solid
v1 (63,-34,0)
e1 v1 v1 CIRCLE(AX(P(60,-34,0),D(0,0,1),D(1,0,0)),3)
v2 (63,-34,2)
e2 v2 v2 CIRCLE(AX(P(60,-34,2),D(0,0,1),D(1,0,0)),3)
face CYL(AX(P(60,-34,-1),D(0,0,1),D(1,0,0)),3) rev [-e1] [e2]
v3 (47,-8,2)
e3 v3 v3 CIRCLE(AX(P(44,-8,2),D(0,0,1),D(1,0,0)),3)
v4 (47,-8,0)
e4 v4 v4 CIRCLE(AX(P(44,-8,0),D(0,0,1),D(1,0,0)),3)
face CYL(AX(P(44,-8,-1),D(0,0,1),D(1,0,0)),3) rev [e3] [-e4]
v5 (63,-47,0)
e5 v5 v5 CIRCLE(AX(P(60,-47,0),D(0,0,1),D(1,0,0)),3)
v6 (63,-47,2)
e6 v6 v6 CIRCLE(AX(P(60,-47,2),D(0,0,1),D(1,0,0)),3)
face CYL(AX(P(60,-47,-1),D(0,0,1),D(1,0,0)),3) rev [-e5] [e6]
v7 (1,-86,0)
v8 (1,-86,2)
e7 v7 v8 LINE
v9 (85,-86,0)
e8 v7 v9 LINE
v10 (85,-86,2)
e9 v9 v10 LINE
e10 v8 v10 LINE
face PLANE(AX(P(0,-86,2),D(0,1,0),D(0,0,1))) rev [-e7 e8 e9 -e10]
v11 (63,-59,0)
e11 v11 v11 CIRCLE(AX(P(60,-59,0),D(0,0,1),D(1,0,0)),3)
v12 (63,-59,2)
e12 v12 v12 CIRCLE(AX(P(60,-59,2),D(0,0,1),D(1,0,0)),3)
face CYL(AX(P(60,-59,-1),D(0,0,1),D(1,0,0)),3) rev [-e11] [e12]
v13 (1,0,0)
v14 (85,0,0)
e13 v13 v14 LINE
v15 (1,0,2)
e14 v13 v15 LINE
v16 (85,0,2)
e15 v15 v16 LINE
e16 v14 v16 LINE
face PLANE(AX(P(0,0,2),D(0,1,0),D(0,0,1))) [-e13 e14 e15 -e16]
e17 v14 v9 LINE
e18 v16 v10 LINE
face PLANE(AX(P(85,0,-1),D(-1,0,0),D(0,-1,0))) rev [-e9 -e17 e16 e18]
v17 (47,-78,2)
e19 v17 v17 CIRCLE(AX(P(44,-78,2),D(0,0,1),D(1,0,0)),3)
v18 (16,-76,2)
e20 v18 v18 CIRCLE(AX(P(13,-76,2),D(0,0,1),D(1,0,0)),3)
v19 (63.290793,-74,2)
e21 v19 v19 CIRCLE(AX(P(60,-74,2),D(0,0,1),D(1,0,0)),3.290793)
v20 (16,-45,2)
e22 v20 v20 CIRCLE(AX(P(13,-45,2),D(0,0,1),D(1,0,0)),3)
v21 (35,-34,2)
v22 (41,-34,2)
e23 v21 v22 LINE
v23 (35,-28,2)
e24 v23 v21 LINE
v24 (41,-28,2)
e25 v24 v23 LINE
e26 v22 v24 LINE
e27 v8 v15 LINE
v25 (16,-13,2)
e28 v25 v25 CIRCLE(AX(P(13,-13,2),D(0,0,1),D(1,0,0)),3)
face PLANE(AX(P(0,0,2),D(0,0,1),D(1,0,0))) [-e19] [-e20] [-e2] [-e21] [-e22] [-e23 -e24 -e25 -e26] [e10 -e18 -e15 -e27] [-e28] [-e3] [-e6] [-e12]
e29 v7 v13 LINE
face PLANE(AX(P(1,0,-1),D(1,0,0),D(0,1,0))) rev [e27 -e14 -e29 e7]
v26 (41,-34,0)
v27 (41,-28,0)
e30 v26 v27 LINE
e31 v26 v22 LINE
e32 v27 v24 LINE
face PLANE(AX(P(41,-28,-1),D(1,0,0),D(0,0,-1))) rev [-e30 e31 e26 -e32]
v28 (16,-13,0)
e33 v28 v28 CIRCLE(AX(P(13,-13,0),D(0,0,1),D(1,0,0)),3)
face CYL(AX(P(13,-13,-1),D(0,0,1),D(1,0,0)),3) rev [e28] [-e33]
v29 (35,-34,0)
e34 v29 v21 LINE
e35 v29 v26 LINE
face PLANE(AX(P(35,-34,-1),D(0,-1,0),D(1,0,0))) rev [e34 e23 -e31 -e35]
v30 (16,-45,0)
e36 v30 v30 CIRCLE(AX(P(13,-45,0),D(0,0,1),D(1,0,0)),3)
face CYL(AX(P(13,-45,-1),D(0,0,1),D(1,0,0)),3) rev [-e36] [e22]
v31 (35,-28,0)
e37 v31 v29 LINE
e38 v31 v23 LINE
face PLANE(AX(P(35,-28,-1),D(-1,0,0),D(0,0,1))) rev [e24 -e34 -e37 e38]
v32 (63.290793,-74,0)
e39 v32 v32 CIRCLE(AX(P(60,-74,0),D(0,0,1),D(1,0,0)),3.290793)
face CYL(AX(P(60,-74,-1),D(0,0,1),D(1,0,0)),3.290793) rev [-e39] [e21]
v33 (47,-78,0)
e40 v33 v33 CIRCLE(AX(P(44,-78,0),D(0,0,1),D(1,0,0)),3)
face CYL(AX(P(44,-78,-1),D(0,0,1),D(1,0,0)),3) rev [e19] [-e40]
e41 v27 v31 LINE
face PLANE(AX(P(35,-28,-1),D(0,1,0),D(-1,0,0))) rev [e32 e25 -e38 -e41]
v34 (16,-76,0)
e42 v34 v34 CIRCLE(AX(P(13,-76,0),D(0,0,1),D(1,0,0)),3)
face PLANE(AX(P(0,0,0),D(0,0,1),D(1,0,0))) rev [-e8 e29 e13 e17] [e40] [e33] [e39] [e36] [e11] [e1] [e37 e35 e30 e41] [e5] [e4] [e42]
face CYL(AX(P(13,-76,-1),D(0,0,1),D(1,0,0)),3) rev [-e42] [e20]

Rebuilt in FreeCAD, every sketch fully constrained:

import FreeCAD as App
import Part
import Sketcher


def add_polygon(sketch, points):
    """Adds a closed chain of lines whose ends are joined by coincident constraints."""
    first, n = sketch.GeometryCount, len(points)
    for a, b in zip(points, points[1:] + points[:1]):
        sketch.addGeometry(Part.LineSegment(App.Vector(*a, 0), App.Vector(*b, 0)), False)
    for i in range(n):
        sketch.addConstraint(Sketcher.Constraint("Coincident", first + i, 2, first + (i + 1) % n, 1))

doc = App.newDocument("Part")
body = doc.addObject("PartDesign::Body", "Body")

sketch1 = body.newObject("Sketcher::SketchObject", "Sketch")
sketch1.AttachmentSupport = (doc.getObject("XY_Plane"), [""])
sketch1.MapMode = "FlatFace"
add_polygon(sketch1, [(0, 0), (0, -86), (86, -86), (86, 0)])
sketch1.addConstraint(Sketcher.Constraint("Vertical", 0))
sketch1.addConstraint(Sketcher.Constraint("Horizontal", 1))
sketch1.addConstraint(Sketcher.Constraint("Vertical", 2))
sketch1.addConstraint(Sketcher.Constraint("Horizontal", 3))
sketch1.addConstraint(Sketcher.Constraint("Coincident", 3, 2, -1, 1))
sketch1.addConstraint(Sketcher.Constraint("Equal", 3, 0))
sketch1.addConstraint(Sketcher.Constraint("DistanceX", 1, 1, 1, 2, 86.0))
pad1 = body.newObject("PartDesign::Pad", "Pad")
pad1.Profile = sketch1
pad1.Length = 2

sketch2 = body.newObject("Sketcher::SketchObject", "Sketch001")
sketch2.AttachmentSupport = (doc.getObject("XY_Plane"), [""])
sketch2.MapMode = "FlatFace"
sketch2.AttachmentOffset = App.Placement(App.Vector(0, 0, 2), App.Rotation())
sketch2.addGeometry(Part.Circle(App.Vector(13, -13, 0), App.Vector(0, 0, 1), 3), False)
sketch2.addConstraint(Sketcher.Constraint("Diameter", 0, 6.0))
sketch2.addConstraint(Sketcher.Constraint("DistanceX", -1, 1, 0, 3, 13.0))
sketch2.addConstraint(Sketcher.Constraint("DistanceY", 0, 3, -1, 1, 13.0))
pocket1 = body.newObject("PartDesign::Pocket", "Pocket")
pocket1.Profile = sketch2
pocket1.Length = 3

sketch3 = body.newObject("Sketcher::SketchObject", "Sketch002")
sketch3.AttachmentSupport = (doc.getObject("XY_Plane"), [""])
sketch3.MapMode = "FlatFace"
sketch3.AttachmentOffset = App.Placement(App.Vector(0, 0, 2), App.Rotation())
sketch3.addGeometry(Part.Circle(App.Vector(13, -45, 0), App.Vector(0, 0, 1), 3), False)
sketch3.addConstraint(Sketcher.Constraint("Diameter", 0, 6.0))
sketch3.addConstraint(Sketcher.Constraint("DistanceX", -1, 1, 0, 3, 13.0))
sketch3.addConstraint(Sketcher.Constraint("DistanceY", 0, 3, -1, 1, 45.0))
pocket2 = body.newObject("PartDesign::Pocket", "Pocket001")
pocket2.Profile = sketch3
pocket2.Length = 3

sketch4 = body.newObject("Sketcher::SketchObject", "Sketch003")
sketch4.AttachmentSupport = (doc.getObject("XY_Plane"), [""])
sketch4.MapMode = "FlatFace"
sketch4.AttachmentOffset = App.Placement(App.Vector(0, 0, 2), App.Rotation())
sketch4.addGeometry(Part.Circle(App.Vector(13, -76, 0), App.Vector(0, 0, 1), 3), False)
sketch4.addConstraint(Sketcher.Constraint("Diameter", 0, 6.0))
sketch4.addConstraint(Sketcher.Constraint("DistanceX", -1, 1, 0, 3, 13.0))
sketch4.addConstraint(Sketcher.Constraint("DistanceY", 0, 3, -1, 1, 76.0))
pocket3 = body.newObject("PartDesign::Pocket", "Pocket002")
pocket3.Profile = sketch4
pocket3.Length = 3

sketch5 = body.newObject("Sketcher::SketchObject", "Sketch004")
sketch5.AttachmentSupport = (doc.getObject("XY_Plane"), [""])
sketch5.MapMode = "FlatFace"
sketch5.AttachmentOffset = App.Placement(App.Vector(0, 0, 2), App.Rotation())
sketch5.addGeometry(Part.Circle(App.Vector(44, -8, 0), App.Vector(0, 0, 1), 3), False)
sketch5.addConstraint(Sketcher.Constraint("Diameter", 0, 6.0))
sketch5.addConstraint(Sketcher.Constraint("DistanceX", -1, 1, 0, 3, 44.0))
sketch5.addConstraint(Sketcher.Constraint("DistanceY", 0, 3, -1, 1, 8.0))
pocket4 = body.newObject("PartDesign::Pocket", "Pocket003")
pocket4.Profile = sketch5
pocket4.Length = 3

sketch6 = body.newObject("Sketcher::SketchObject", "Sketch005")
sketch6.AttachmentSupport = (doc.getObject("XY_Plane"), [""])
sketch6.MapMode = "FlatFace"
sketch6.AttachmentOffset = App.Placement(App.Vector(0, 0, 2), App.Rotation())
sketch6.addGeometry(Part.Circle(App.Vector(44, -78, 0), App.Vector(0, 0, 1), 3), False)
sketch6.addConstraint(Sketcher.Constraint("Diameter", 0, 6.0))
sketch6.addConstraint(Sketcher.Constraint("DistanceX", -1, 1, 0, 3, 44.0))
sketch6.addConstraint(Sketcher.Constraint("DistanceY", 0, 3, -1, 1, 78.0))
pocket5 = body.newObject("PartDesign::Pocket", "Pocket004")
pocket5.Profile = sketch6
pocket5.Length = 3

sketch7 = body.newObject("Sketcher::SketchObject", "Sketch006")
sketch7.AttachmentSupport = (doc.getObject("XY_Plane"), [""])
sketch7.MapMode = "FlatFace"
sketch7.AttachmentOffset = App.Placement(App.Vector(0, 0, 2), App.Rotation())
sketch7.addGeometry(Part.Circle(App.Vector(60, -34, 0), App.Vector(0, 0, 1), 3), False)
sketch7.addConstraint(Sketcher.Constraint("Diameter", 0, 6.0))
sketch7.addConstraint(Sketcher.Constraint("DistanceX", -1, 1, 0, 3, 60.0))
sketch7.addConstraint(Sketcher.Constraint("DistanceY", 0, 3, -1, 1, 34.0))
pocket6 = body.newObject("PartDesign::Pocket", "Pocket005")
pocket6.Profile = sketch7
pocket6.Length = 3

sketch8 = body.newObject("Sketcher::SketchObject", "Sketch007")
sketch8.AttachmentSupport = (doc.getObject("XY_Plane"), [""])
sketch8.MapMode = "FlatFace"
sketch8.AttachmentOffset = App.Placement(App.Vector(0, 0, 2), App.Rotation())
sketch8.addGeometry(Part.Circle(App.Vector(60, -47, 0), App.Vector(0, 0, 1), 3), False)
sketch8.addConstraint(Sketcher.Constraint("Diameter", 0, 6.0))
sketch8.addConstraint(Sketcher.Constraint("DistanceX", -1, 1, 0, 3, 60.0))
sketch8.addConstraint(Sketcher.Constraint("DistanceY", 0, 3, -1, 1, 47.0))
pocket7 = body.newObject("PartDesign::Pocket", "Pocket006")
pocket7.Profile = sketch8
pocket7.Length = 3

sketch9 = body.newObject("Sketcher::SketchObject", "Sketch008")
sketch9.AttachmentSupport = (doc.getObject("XY_Plane"), [""])
sketch9.MapMode = "FlatFace"
sketch9.AttachmentOffset = App.Placement(App.Vector(0, 0, 2), App.Rotation())
sketch9.addGeometry(Part.Circle(App.Vector(60, -59, 0), App.Vector(0, 0, 1), 3), False)
sketch9.addConstraint(Sketcher.Constraint("Diameter", 0, 6.0))
sketch9.addConstraint(Sketcher.Constraint("DistanceX", -1, 1, 0, 3, 60.0))
sketch9.addConstraint(Sketcher.Constraint("DistanceY", 0, 3, -1, 1, 59.0))
pocket8 = body.newObject("PartDesign::Pocket", "Pocket007")
pocket8.Profile = sketch9
pocket8.Length = 3

sketch10 = body.newObject("Sketcher::SketchObject", "Sketch009")
sketch10.AttachmentSupport = (doc.getObject("XY_Plane"), [""])
sketch10.MapMode = "FlatFace"
sketch10.AttachmentOffset = App.Placement(App.Vector(0, 0, 2), App.Rotation())
sketch10.addGeometry(Part.Circle(App.Vector(60, -74, 0), App.Vector(0, 0, 1), 3.3), False)
sketch10.addConstraint(Sketcher.Constraint("DistanceX", -1, 1, 0, 3, 60.0))
sketch10.addConstraint(Sketcher.Constraint("DistanceY", 0, 3, -1, 1, 74.0))
sketch10.addConstraint(Sketcher.Constraint("Diameter", 0, 6.581587))
pocket9 = body.newObject("PartDesign::Pocket", "Pocket008")
pocket9.Profile = sketch10
pocket9.Length = 3

sketch11 = body.newObject("Sketcher::SketchObject", "Sketch010")
sketch11.AttachmentSupport = (doc.getObject("XY_Plane"), [""])
sketch11.MapMode = "FlatFace"
sketch11.AttachmentOffset = App.Placement(App.Vector(0, 0, 2), App.Rotation())
add_polygon(sketch11, [(35, -28), (35, -34), (41, -34), (41, -28)])
sketch11.addConstraint(Sketcher.Constraint("Vertical", 0))
sketch11.addConstraint(Sketcher.Constraint("Horizontal", 1))
sketch11.addConstraint(Sketcher.Constraint("Vertical", 2))
sketch11.addConstraint(Sketcher.Constraint("Horizontal", 3))
sketch11.addConstraint(Sketcher.Constraint("Equal", 3, 0))
sketch11.addConstraint(Sketcher.Constraint("DistanceX", 1, 1, 1, 2, 6.0))
sketch11.addConstraint(Sketcher.Constraint("DistanceX", -1, 1, 0, 2, 35.0))
sketch11.addConstraint(Sketcher.Constraint("DistanceY", 0, 2, -1, 1, 34.0))
pocket10 = body.newObject("PartDesign::Pocket", "Pocket009")
pocket10.Profile = sketch11
pocket10.Length = 3

sketch12 = body.newObject("Sketcher::SketchObject", "Sketch011")
sketch12.AttachmentSupport = (doc.getObject("XY_Plane"), [""])
sketch12.MapMode = "FlatFace"
sketch12.AttachmentOffset = App.Placement(App.Vector(0, 0, 2), App.Rotation())
add_polygon(sketch12, [(85, 0), (85, -86), (86, -86), (86, 0)])
add_polygon(sketch12, [(0, 0), (0, -86), (1, -86), (1, 0)])
sketch12.addConstraint(Sketcher.Constraint("Vertical", 0))
sketch12.addConstraint(Sketcher.Constraint("Horizontal", 1))
sketch12.addConstraint(Sketcher.Constraint("Vertical", 2))
sketch12.addConstraint(Sketcher.Constraint("Horizontal", 3))
sketch12.addConstraint(Sketcher.Constraint("Vertical", 4))
sketch12.addConstraint(Sketcher.Constraint("Horizontal", 5))
sketch12.addConstraint(Sketcher.Constraint("Vertical", 6))
sketch12.addConstraint(Sketcher.Constraint("Horizontal", 7))
sketch12.addConstraint(Sketcher.Constraint("Coincident", 7, 2, -1, 1))
sketch12.addConstraint(Sketcher.Constraint("PointOnObject", 2, 2, -1))
sketch12.addConstraint(Sketcher.Constraint("Horizontal", 1, 2, 4, 2))
sketch12.addConstraint(Sketcher.Constraint("Equal", 3, 5))
sketch12.addConstraint(Sketcher.Constraint("DistanceX", 1, 1, 1, 2, 1.0))
sketch12.addConstraint(Sketcher.Constraint("DistanceY", 0, 2, 0, 1, 86.0))
sketch12.addConstraint(Sketcher.Constraint("DistanceX", -1, 1, 0, 2, 85.0))
pocket11 = body.newObject("PartDesign::Pocket", "Pocket010")
pocket11.Profile = sketch12
pocket11.Length = 3

doc.recompute()
